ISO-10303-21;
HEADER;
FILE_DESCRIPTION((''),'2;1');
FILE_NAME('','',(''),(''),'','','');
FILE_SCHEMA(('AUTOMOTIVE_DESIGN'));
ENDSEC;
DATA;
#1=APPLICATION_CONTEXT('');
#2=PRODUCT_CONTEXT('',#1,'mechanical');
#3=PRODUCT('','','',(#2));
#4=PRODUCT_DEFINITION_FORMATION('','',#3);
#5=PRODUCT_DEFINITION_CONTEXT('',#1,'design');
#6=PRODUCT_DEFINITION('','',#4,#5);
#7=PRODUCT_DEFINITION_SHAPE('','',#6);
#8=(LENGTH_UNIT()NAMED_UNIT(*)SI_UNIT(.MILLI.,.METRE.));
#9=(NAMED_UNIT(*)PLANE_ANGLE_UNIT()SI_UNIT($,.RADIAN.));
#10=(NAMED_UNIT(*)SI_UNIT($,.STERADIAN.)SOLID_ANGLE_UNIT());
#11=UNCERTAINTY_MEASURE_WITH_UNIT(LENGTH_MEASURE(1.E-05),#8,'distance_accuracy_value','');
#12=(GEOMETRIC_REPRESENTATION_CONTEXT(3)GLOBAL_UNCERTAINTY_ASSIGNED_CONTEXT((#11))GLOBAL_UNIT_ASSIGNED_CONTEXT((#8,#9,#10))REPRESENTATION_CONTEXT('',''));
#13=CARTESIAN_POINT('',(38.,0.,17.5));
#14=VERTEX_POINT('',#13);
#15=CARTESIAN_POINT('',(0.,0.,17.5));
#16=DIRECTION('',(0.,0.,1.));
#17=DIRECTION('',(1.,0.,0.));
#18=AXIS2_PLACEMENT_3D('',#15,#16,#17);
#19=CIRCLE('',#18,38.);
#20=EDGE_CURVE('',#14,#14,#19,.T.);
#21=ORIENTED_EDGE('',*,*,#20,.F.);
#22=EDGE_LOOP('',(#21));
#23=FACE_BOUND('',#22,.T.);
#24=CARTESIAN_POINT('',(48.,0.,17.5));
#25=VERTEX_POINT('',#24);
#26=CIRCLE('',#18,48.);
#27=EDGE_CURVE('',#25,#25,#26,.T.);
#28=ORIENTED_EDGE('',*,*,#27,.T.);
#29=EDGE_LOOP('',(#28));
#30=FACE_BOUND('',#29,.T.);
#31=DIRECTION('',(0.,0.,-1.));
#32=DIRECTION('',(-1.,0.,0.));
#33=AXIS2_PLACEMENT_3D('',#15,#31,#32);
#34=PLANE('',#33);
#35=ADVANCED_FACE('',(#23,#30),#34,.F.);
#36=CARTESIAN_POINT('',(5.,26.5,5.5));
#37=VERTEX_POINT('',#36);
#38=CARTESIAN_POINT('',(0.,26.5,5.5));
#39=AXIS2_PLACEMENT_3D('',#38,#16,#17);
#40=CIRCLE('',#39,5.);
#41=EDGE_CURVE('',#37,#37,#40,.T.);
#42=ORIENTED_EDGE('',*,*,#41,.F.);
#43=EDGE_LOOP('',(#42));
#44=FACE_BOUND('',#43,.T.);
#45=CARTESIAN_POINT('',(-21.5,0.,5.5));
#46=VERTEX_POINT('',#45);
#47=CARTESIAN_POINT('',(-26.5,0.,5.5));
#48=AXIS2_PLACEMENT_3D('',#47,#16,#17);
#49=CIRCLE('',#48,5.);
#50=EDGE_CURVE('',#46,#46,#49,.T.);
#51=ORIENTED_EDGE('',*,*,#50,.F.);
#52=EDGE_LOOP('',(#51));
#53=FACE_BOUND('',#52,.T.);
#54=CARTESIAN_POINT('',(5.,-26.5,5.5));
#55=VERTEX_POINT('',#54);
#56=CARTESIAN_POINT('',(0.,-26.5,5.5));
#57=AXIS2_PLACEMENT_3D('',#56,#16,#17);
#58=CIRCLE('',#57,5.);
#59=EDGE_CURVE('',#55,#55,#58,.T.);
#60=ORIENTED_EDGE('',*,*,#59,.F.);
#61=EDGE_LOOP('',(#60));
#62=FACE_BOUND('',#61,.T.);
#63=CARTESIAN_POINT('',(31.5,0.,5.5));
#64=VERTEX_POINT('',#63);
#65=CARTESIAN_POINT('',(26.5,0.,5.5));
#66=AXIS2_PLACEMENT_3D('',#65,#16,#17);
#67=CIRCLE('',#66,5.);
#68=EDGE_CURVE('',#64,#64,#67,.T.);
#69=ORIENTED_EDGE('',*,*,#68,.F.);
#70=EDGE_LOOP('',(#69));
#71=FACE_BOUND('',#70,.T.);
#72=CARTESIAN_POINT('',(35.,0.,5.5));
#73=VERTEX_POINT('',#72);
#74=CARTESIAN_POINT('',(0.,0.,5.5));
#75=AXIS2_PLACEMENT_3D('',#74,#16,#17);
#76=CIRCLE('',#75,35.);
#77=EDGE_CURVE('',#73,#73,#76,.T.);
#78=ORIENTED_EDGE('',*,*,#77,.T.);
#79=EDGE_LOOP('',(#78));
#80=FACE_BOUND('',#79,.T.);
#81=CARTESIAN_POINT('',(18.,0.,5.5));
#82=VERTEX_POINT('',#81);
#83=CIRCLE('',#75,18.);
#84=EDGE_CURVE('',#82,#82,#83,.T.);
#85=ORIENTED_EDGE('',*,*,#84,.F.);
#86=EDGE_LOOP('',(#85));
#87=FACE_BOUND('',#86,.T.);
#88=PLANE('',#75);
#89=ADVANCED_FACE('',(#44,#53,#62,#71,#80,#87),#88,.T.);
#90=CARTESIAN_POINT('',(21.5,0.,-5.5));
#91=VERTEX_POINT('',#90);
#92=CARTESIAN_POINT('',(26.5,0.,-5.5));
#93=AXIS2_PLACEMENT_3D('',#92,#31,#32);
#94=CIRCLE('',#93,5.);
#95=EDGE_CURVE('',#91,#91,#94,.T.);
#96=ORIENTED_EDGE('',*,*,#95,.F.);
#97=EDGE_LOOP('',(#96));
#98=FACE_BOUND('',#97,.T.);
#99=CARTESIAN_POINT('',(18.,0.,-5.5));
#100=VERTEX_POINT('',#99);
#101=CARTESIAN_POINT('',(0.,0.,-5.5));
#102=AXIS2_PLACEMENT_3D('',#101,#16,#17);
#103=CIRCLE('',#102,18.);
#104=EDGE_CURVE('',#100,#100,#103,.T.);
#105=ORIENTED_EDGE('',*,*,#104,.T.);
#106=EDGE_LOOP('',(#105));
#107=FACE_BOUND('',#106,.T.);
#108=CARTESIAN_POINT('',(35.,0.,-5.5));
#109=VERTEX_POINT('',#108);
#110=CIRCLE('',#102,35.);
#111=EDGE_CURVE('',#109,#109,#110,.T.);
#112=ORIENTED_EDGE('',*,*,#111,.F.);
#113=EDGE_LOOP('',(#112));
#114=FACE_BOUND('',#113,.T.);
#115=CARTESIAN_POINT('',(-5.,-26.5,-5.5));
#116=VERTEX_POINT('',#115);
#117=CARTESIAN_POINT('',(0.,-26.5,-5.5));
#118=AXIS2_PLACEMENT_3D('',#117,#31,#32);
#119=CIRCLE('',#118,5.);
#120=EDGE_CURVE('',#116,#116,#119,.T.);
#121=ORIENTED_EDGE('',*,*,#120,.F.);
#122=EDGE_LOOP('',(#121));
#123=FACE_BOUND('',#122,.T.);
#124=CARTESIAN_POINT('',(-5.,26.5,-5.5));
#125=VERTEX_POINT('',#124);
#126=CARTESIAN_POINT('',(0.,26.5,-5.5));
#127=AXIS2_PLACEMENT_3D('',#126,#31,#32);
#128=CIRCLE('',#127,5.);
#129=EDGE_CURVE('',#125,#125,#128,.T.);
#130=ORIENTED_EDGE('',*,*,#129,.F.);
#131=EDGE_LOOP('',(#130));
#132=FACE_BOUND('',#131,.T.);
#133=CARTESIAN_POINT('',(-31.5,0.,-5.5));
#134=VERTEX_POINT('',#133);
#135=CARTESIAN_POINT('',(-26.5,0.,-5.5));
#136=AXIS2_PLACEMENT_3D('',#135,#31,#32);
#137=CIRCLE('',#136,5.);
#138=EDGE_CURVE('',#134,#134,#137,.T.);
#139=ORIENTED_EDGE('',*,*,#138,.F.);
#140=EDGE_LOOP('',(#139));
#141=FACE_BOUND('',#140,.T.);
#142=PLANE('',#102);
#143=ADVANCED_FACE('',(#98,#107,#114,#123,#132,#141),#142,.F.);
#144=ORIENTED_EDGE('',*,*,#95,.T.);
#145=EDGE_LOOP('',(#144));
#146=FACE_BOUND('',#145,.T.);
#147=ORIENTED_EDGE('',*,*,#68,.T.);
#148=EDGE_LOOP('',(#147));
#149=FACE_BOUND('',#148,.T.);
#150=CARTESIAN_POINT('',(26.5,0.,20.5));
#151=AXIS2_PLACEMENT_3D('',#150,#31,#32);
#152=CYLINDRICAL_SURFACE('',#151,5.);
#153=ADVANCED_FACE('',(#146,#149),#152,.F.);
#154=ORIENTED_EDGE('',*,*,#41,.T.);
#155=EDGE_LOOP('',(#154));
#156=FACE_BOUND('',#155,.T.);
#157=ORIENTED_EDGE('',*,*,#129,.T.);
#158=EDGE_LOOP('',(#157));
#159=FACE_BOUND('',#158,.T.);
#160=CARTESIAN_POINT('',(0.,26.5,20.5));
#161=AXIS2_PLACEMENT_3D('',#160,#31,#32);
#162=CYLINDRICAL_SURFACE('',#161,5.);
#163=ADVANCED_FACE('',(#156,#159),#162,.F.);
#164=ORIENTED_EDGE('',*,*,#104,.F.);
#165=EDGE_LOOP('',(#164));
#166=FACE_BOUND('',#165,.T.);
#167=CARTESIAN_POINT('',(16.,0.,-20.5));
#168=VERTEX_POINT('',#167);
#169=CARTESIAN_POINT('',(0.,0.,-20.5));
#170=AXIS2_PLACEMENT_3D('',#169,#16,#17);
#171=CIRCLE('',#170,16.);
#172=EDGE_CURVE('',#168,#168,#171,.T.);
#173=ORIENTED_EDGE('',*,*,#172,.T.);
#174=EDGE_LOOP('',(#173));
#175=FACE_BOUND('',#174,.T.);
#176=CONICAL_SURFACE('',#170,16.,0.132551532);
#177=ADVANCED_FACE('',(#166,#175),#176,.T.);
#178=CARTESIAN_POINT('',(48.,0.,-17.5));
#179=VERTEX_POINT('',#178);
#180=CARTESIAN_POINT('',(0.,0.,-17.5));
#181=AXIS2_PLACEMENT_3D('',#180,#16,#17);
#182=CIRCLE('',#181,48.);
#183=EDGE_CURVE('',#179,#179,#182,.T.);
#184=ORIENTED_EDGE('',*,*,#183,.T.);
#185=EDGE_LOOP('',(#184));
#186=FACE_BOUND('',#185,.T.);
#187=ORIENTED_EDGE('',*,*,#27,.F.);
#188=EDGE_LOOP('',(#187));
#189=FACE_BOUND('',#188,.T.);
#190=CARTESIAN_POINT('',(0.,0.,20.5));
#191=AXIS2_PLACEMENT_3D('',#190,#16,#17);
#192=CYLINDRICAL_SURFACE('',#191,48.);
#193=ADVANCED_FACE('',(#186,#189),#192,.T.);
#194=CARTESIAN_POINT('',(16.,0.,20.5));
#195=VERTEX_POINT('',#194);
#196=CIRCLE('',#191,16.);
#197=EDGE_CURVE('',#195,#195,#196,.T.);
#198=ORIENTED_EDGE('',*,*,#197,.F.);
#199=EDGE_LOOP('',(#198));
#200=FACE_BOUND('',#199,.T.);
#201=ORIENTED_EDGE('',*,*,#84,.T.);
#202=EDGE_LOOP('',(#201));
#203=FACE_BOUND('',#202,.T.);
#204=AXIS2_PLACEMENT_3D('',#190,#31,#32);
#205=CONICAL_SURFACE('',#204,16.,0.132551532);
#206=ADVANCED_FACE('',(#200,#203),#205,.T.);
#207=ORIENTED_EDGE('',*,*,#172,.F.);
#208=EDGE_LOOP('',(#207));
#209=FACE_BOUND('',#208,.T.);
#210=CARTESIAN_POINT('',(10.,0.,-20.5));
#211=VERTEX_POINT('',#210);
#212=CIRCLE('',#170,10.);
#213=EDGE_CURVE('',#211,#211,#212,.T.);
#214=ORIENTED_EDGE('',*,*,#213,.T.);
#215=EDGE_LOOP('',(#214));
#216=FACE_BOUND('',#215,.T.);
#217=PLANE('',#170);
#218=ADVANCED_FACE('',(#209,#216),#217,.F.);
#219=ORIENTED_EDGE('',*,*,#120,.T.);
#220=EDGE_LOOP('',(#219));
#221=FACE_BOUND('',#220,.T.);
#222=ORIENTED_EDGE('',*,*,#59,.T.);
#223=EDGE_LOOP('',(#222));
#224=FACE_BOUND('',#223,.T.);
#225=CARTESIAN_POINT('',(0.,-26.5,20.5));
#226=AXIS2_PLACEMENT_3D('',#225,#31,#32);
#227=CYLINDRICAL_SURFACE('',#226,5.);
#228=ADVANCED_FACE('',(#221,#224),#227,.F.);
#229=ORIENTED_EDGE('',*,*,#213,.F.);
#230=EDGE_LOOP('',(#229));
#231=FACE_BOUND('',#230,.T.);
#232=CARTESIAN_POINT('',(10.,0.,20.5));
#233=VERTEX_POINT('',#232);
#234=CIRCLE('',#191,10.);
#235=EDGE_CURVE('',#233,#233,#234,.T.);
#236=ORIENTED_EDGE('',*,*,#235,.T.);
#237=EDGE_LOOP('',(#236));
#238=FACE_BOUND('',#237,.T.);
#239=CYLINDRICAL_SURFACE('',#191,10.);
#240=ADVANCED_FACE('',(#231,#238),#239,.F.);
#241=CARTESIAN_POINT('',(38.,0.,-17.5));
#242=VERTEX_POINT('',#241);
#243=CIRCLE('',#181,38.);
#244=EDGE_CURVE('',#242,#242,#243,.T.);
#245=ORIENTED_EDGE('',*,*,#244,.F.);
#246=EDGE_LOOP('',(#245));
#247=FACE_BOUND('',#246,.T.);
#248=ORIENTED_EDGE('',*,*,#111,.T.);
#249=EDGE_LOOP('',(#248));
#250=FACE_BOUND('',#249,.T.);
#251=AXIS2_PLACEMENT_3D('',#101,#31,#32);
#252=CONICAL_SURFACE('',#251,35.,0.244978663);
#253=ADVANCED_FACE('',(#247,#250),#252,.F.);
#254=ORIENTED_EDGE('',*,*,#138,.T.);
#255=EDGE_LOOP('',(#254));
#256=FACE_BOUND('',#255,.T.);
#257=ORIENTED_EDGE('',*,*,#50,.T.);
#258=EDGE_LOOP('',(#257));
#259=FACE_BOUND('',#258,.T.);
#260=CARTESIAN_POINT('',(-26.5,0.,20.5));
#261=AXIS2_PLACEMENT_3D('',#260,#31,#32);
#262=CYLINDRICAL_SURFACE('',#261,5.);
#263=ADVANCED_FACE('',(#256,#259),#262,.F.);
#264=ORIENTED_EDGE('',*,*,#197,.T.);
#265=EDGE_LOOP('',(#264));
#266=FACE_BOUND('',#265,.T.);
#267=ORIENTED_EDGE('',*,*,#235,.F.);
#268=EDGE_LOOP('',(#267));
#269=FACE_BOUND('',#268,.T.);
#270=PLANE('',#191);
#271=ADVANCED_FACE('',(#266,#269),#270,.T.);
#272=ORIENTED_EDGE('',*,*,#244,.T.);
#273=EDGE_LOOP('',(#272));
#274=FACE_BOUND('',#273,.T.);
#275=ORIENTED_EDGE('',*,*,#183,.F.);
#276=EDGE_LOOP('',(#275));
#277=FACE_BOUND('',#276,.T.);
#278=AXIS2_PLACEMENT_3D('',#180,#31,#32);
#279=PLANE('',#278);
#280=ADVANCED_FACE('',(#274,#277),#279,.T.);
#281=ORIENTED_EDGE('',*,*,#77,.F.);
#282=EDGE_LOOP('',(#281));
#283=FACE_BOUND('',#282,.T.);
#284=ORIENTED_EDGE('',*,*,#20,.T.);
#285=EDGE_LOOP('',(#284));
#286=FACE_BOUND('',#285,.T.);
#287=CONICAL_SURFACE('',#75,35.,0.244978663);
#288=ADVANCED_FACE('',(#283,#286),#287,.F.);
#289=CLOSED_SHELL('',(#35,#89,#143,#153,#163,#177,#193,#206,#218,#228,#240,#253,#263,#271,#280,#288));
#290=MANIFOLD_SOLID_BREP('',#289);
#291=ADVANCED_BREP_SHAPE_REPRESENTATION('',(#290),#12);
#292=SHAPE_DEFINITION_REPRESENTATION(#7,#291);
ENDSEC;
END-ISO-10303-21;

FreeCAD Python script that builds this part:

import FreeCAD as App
import Part
import Sketcher

V = App.Vector


def add_polygon(sketch, points):
    """Adds a closed chain of lines whose ends are joined by coincident constraints."""
    first, n = sketch.GeometryCount, len(points)
    for a, b in zip(points, points[1:] + points[:1]):
        sketch.addGeometry(Part.LineSegment(App.Vector(*a, 0), App.Vector(*b, 0)), False)
    for i in range(n):
        sketch.addConstraint(Sketcher.Constraint("Coincident", first + i, 2, first + (i + 1) % n, 1))

doc = App.newDocument("Part")
body = doc.addObject("PartDesign::Body", "Body")

# Sketch on YZ plane
sketch1 = body.newObject("Sketcher::SketchObject", "Sketch")
sketch1.AttachmentSupport = (doc.getObject("YZ_Plane"), [""])
sketch1.MapMode = "FlatFace"
add_polygon(sketch1, [(48, -18), (48, 18), (38, 18), (35, 6), (18, 6), (16, 20), (10, 20), (10, -20), (16, -20), (18, -6), (35, -6), (38, -18)])  # lines 0-11
sketch1.addConstraint(Sketcher.Constraint("Vertical", 0))
sketch1.addConstraint(Sketcher.Constraint("Horizontal", 1))
sketch1.addConstraint(Sketcher.Constraint("Horizontal", 3))
sketch1.addConstraint(Sketcher.Constraint("Horizontal", 5))
sketch1.addConstraint(Sketcher.Constraint("Vertical", 6))
sketch1.addConstraint(Sketcher.Constraint("Horizontal", 7))
sketch1.addConstraint(Sketcher.Constraint("Horizontal", 9))
sketch1.addConstraint(Sketcher.Constraint("Horizontal", 11))
sketch1.addConstraint(Sketcher.Constraint("Symmetric", 4, 2, 7, 2, -1))
sketch1.addConstraint(Sketcher.Constraint("Symmetric", 3, 2, 8, 2, -1))
sketch1.addConstraint(Sketcher.Constraint("Symmetric", 1, 2, 10, 2, -1))
sketch1.addConstraint(Sketcher.Constraint("Vertical", 2, 2, 9, 2))
sketch1.addConstraint(Sketcher.Constraint("DistanceX", 1, 2, 1, 1, 10.0))
sketch1.addConstraint(Sketcher.Constraint("DistanceX", 3, 2, 3, 1, 17.0))
sketch1.addConstraint(Sketcher.Constraint("DistanceX", 5, 2, 5, 1, 6.0))
sketch1.addConstraint(Sketcher.Constraint("DistanceY", 0, 1, 0, 2, 35.0))
sketch1.addConstraint(Sketcher.Constraint("DistanceY", 6, 2, 6, 1, 41.0))
sketch1.addConstraint(Sketcher.Constraint("DistanceX", -1, 1, 0, 2, 48.0))
sketch1.addConstraint(Sketcher.Constraint("DistanceX", -1, 1, 2, 2, 35.0))
sketch1.addConstraint(Sketcher.Constraint("DistanceX", -1, 1, 4, 2, 16.0))
sketch1.addConstraint(Sketcher.Constraint("DistanceY", 2, 2, 1, 2, 12.0))
revolution = body.newObject("PartDesign::Revolution", "Revolution")
revolution.Profile = sketch1
revolution.ReferenceAxis = (sketch1, ["V_Axis"])
revolution.Angle = 360

# Sketch on XY plane
sketch2 = body.newObject("Sketcher::SketchObject", "Sketch001")
sketch2.AttachmentSupport = (doc.getObject("XY_Plane"), [""])
sketch2.MapMode = "FlatFace"
sketch2.AttachmentOffset = App.Placement(V(0, 0, -5.5), App.Rotation())
sketch2.addGeometry(Part.Circle(V(0, 26, 0), V(0, 0, 1), 5), False)
sketch2.addGeometry(Part.Circle(V(-26, 0, 0), V(0, 0, 1), 5), False)
sketch2.addGeometry(Part.Circle(V(0, -26, 0), V(0, 0, 1), 5), False)
sketch2.addGeometry(Part.Circle(V(26, 0, 0), V(0, 0, 1), 5), False)
sketch2.addConstraint(Sketcher.Constraint("Equal", 0, 1))
sketch2.addConstraint(Sketcher.Constraint("Equal", 1, 2))
sketch2.addConstraint(Sketcher.Constraint("Equal", 2, 3))
sketch2.addConstraint(Sketcher.Constraint("Symmetric", 0, 3, 2, 3, -1, 1))
sketch2.addConstraint(Sketcher.Constraint("Symmetric", 1, 3, 3, 3, -1, 1))
sketch2.addConstraint(Sketcher.Constraint("PointOnObject", 0, 3, -2))
sketch2.addConstraint(Sketcher.Constraint("PointOnObject", 1, 3, -1))
sketch2.addConstraint(Sketcher.Constraint("Diameter", 0, 10.0))
sketch2.addConstraint(Sketcher.Constraint("DistanceY", 2, 3, 0, 3, 53.0))
sketch2.addConstraint(Sketcher.Constraint("DistanceX", 1, 3, 3, 3, 53.0))
pocket1 = body.newObject("PartDesign::Pocket", "Pocket")
pocket1.Profile = sketch2
pocket1.Type = "ThroughAll"
pocket1.Reversed = True

doc.recompute()
